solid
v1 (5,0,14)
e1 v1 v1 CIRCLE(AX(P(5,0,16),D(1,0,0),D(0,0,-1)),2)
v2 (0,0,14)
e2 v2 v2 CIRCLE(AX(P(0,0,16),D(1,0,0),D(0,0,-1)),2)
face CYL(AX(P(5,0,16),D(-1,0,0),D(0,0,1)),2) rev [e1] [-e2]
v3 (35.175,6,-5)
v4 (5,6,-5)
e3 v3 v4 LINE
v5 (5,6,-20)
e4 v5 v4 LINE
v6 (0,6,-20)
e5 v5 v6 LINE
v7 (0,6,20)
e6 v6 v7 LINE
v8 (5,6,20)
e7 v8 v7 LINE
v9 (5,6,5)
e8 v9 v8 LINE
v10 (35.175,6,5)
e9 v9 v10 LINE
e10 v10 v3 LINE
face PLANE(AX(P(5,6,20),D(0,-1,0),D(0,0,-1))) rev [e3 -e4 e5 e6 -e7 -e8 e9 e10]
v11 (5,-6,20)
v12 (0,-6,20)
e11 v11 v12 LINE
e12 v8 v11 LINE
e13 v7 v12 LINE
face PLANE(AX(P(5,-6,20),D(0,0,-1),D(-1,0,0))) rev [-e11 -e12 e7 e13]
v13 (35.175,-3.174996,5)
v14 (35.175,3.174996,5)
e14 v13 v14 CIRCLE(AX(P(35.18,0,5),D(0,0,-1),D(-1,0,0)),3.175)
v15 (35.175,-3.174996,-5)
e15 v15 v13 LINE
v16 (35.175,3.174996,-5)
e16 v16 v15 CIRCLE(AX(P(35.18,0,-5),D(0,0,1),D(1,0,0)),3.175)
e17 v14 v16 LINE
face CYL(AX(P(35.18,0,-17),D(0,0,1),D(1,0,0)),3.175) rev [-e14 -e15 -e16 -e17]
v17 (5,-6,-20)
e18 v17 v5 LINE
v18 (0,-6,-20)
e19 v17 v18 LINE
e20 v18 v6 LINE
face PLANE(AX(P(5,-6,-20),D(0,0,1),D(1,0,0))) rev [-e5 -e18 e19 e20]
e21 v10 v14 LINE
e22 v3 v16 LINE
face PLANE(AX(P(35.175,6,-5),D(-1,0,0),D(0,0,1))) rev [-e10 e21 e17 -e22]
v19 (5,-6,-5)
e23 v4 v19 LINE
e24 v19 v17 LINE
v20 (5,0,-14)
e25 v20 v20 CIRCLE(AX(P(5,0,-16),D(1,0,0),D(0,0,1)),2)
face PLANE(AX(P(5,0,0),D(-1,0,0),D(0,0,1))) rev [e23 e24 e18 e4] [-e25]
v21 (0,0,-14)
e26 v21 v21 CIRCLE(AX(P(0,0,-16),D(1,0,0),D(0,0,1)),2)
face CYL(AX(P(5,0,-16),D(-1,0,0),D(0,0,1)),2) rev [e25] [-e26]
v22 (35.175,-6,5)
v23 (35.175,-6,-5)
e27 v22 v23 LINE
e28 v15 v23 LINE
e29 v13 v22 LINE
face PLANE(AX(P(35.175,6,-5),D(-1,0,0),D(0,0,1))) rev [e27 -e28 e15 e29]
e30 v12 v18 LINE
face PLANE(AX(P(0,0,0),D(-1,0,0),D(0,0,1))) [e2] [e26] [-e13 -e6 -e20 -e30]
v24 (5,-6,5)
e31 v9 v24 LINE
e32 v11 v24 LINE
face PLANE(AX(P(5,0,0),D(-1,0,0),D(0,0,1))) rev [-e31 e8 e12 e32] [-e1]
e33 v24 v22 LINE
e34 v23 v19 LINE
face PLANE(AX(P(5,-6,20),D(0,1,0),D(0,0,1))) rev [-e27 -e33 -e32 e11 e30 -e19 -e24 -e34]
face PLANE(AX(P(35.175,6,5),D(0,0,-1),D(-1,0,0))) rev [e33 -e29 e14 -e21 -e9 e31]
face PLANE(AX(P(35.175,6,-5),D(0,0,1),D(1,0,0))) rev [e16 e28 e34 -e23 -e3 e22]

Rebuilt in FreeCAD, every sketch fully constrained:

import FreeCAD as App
import Part
import Sketcher
from FreeCAD import Vector


def add_polygon(sketch, points):
    """Adds a closed chain of lines whose ends are joined by coincident constraints."""
    first, n = sketch.GeometryCount, len(points)
    for a, b in zip(points, points[1:] + points[:1]):
        sketch.addGeometry(Part.LineSegment(App.Vector(*a, 0), App.Vector(*b, 0)), False)
    for i in range(n):
        sketch.addConstraint(Sketcher.Constraint("Coincident", first + i, 2, first + (i + 1) % n, 1))

doc = App.newDocument("Part")
body = doc.addObject("PartDesign::Body", "Body")

# Sketch on YZ plane
sketch1 = body.newObject("Sketcher::SketchObject", "Sketch")
sketch1.AttachmentSupport = (doc.getObject("YZ_Plane"), [""])
sketch1.MapMode = "FlatFace"
add_polygon(sketch1, [(6, 20), (-6, 20), (-6, -20), (6, -20)])  # lines 0-3
sketch1.addGeometry(Part.Circle(Vector(0, 16, 0), Vector(0, 0, 1), 2), False)  # 4
sketch1.addGeometry(Part.Circle(Vector(0, -16, 0), Vector(0, 0, 1), 2), False)  # 5
sketch1.addConstraint(Sketcher.Constraint("Horizontal", 0))
sketch1.addConstraint(Sketcher.Constraint("Vertical", 1))
sketch1.addConstraint(Sketcher.Constraint("Horizontal", 2))
sketch1.addConstraint(Sketcher.Constraint("Vertical", 3))
sketch1.addConstraint(Sketcher.Constraint("Equal", 4, 5))
sketch1.addConstraint(Sketcher.Constraint("Symmetric", 4, 3, 5, 3, -1, 1))
sketch1.addConstraint(Sketcher.Constraint("Symmetric", 0, 2, 2, 2, -1, 1))
sketch1.addConstraint(Sketcher.Constraint("PointOnObject", 4, 3, -2))
sketch1.addConstraint(Sketcher.Constraint("Diameter", 4, 4.0))
sketch1.addConstraint(Sketcher.Constraint("DistanceX", 0, 2, 0, 1, 12.0))
sketch1.addConstraint(Sketcher.Constraint("DistanceY", 1, 2, 1, 1, 40.0))
sketch1.addConstraint(Sketcher.Constraint("DistanceY", -1, 1, 4, 3, 16.0))
pad1 = body.newObject("PartDesign::Pad", "Pad")
pad1.Profile = sketch1
pad1.Length = 5

# Sketch on XZ plane
sketch2 = body.newObject("Sketcher::SketchObject", "Sketch001")
sketch2.AttachmentSupport = (doc.getObject("XZ_Plane"), [""])
sketch2.MapMode = "FlatFace"
add_polygon(sketch2, [(5, -5), (5, 5), (35, 5), (35, -5)])  # lines 0-3
sketch2.addConstraint(Sketcher.Constraint("Vertical", 0))
sketch2.addConstraint(Sketcher.Constraint("Horizontal", 1))
sketch2.addConstraint(Sketcher.Constraint("Vertical", 2))
sketch2.addConstraint(Sketcher.Constraint("Horizontal", 3))
sketch2.addConstraint(Sketcher.Constraint("DistanceY", 0, 1, 0, 2, 10.0))
sketch2.addConstraint(Sketcher.Constraint("DistanceX", -1, 1, 0, 2, 5.0))
sketch2.addConstraint(Sketcher.Constraint("DistanceY", -1, 1, 0, 2, 5.0))
sketch2.addConstraint(Sketcher.Constraint("DistanceX", 1, 1, 1, 2, 30.175))
pad2 = body.newObject("PartDesign::Pad", "Pad001")
pad2.Profile = sketch2
pad2.Length = 12
pad2.Midplane = True

# Sketch on XY plane
sketch3 = body.newObject("Sketcher::SketchObject", "Sketch002")
sketch3.AttachmentSupport = (doc.getObject("XY_Plane"), [""])
sketch3.MapMode = "FlatFace"
sketch3.addGeometry(Part.Circle(Vector(35.2, 0, 0), Vector(0, 0, 1), 3.2), False)
sketch3.addConstraint(Sketcher.Constraint("PointOnObject", 0, 3, -1))
sketch3.addConstraint(Sketcher.Constraint("Diameter", 0, 6.35))
sketch3.addConstraint(Sketcher.Constraint("DistanceX", -1, 1, 0, 3, 35.18))
pocket1 = body.newObject("PartDesign::Pocket", "Pocket")
pocket1.Profile = sketch3
pocket1.Length = 34
pocket1.Midplane = True

doc.recompute()
